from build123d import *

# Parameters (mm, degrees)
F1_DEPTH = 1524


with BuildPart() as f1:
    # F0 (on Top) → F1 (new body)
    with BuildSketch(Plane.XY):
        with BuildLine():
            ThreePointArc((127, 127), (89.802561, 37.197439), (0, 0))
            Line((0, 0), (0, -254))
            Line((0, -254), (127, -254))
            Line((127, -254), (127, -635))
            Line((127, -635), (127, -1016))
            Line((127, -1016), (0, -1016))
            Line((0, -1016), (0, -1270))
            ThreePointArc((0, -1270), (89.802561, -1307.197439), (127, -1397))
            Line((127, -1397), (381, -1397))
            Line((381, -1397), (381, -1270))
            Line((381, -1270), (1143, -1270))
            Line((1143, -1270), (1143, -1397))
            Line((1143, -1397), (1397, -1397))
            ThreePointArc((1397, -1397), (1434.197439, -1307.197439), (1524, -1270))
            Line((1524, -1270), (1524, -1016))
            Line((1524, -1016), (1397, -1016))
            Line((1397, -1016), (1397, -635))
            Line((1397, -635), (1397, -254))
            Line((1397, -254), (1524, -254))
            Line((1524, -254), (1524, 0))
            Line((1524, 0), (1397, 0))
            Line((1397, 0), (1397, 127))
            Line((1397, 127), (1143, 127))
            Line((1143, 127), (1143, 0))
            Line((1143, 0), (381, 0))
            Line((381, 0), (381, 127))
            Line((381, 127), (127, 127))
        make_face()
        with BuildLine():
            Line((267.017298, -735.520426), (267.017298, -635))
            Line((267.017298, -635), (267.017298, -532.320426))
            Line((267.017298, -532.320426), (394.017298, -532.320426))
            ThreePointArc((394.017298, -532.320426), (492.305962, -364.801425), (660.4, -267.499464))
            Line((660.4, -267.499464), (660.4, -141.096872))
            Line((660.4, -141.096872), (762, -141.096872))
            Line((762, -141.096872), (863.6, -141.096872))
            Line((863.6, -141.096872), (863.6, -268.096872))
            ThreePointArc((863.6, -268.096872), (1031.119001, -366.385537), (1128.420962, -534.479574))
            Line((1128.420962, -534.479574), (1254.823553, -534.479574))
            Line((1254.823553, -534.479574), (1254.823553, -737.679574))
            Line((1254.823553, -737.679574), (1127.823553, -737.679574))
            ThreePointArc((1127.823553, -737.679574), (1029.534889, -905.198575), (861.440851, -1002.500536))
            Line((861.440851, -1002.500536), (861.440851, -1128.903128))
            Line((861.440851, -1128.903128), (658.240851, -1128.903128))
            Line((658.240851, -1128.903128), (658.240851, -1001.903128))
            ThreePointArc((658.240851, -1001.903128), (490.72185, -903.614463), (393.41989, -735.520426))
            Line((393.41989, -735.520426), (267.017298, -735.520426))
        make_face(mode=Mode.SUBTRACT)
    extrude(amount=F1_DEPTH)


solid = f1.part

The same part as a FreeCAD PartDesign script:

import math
import FreeCAD as App
import Part
import Sketcher
from FreeCAD import Vector
Q = App.Units.Quantity

doc = App.newDocument("Part")
body = doc.addObject("PartDesign::Body", "Body")

sketch1 = body.newObject("Sketcher::SketchObject", "Sketch")
sketch1.AttachmentSupport = (doc.getObject("XY_Plane"), [""])
sketch1.MapMode = "FlatFace"
sketch1.addGeometry(Part.ArcOfCircle(Part.Circle(Vector(0, 127, 0), Vector(0, 0, 1), 127), math.radians(-90), math.radians(0)), False)
sketch1.addGeometry(Part.LineSegment(Vector(0, 0, 0), Vector(0, -254, 0)), False)
sketch1.addGeometry(Part.LineSegment(Vector(0, -254, 0), Vector(127, -254, 0)), False)
sketch1.addGeometry(Part.LineSegment(Vector(127, -254, 0), Vector(127, -1016, 0)), False)
sketch1.addGeometry(Part.LineSegment(Vector(127, -1016, 0), Vector(0, -1016, 0)), False)
sketch1.addGeometry(Part.LineSegment(Vector(0, -1016, 0), Vector(0, -1270, 0)), False)
sketch1.addGeometry(Part.ArcOfCircle(Part.Circle(Vector(0, -1397, 0), Vector(0, 0, 1), 127), math.radians(0), math.radians(90)), False)
sketch1.addGeometry(Part.LineSegment(Vector(127, -1397, 0), Vector(381, -1397, 0)), False)
sketch1.addGeometry(Part.LineSegment(Vector(381, -1397, 0), Vector(381, -1270, 0)), False)
sketch1.addGeometry(Part.LineSegment(Vector(381, -1270, 0), Vector(1143, -1270, 0)), False)
sketch1.addGeometry(Part.LineSegment(Vector(1143, -1270, 0), Vector(1143, -1397, 0)), False)
sketch1.addGeometry(Part.LineSegment(Vector(1143, -1397, 0), Vector(1397, -1397, 0)), False)
sketch1.addGeometry(Part.ArcOfCircle(Part.Circle(Vector(1524, -1397, 0), Vector(0, 0, 1), 127), math.radians(90), math.radians(180)), False)
sketch1.addGeometry(Part.LineSegment(Vector(1524, -1270, 0), Vector(1524, -1016, 0)), False)
sketch1.addGeometry(Part.LineSegment(Vector(1524, -1016, 0), Vector(1397, -1016, 0)), False)
sketch1.addGeometry(Part.LineSegment(Vector(1397, -1016, 0), Vector(1397, -254, 0)), False)
sketch1.addGeometry(Part.LineSegment(Vector(1397, -254, 0), Vector(1524, -254, 0)), False)
sketch1.addGeometry(Part.LineSegment(Vector(1524, -254, 0), Vector(1524, 0, 0)), False)
sketch1.addGeometry(Part.LineSegment(Vector(1524, 0, 0), Vector(1397, 0, 0)), False)
sketch1.addGeometry(Part.LineSegment(Vector(1397, 0, 0), Vector(1397, 127, 0)), False)
sketch1.addGeometry(Part.LineSegment(Vector(1397, 127, 0), Vector(1143, 127, 0)), False)
sketch1.addGeometry(Part.LineSegment(Vector(1143, 127, 0), Vector(1143, 0, 0)), False)
sketch1.addGeometry(Part.LineSegment(Vector(1143, 0, 0), Vector(381, 0, 0)), False)
sketch1.addGeometry(Part.LineSegment(Vector(381, 0, 0), Vector(381, 127, 0)), False)
sketch1.addGeometry(Part.LineSegment(Vector(381, 127, 0), Vector(127, 127, 0)), False)
sketch1.addGeometry(Part.LineSegment(Vector(393, -736, 0), Vector(267, -736, 0)), False)
sketch1.addGeometry(Part.LineSegment(Vector(267, -736, 0), Vector(267, -532, 0)), False)
sketch1.addGeometry(Part.LineSegment(Vector(267, -532, 0), Vector(394, -532, 0)), False)
sketch1.addGeometry(Part.ArcOfCircle(Part.Circle(Vector(761, -635, 0), Vector(0, 0, 1), 381), math.radians(105), math.radians(164)), False)
sketch1.addGeometry(Part.LineSegment(Vector(660, -267, 0), Vector(660, -141, 0)), False)
sketch1.addGeometry(Part.LineSegment(Vector(660, -141, 0), Vector(864, -141, 0)), False)
sketch1.addGeometry(Part.LineSegment(Vector(864, -141, 0), Vector(864, -268, 0)), False)
sketch1.addGeometry(Part.ArcOfCircle(Part.Circle(Vector(761, -635, 0), Vector(0, 0, 1), 381), math.radians(15), math.radians(74)), False)
sketch1.addGeometry(Part.LineSegment(Vector(1128, -534, 0), Vector(1255, -534, 0)), False)
sketch1.addGeometry(Part.LineSegment(Vector(1255, -534, 0), Vector(1255, -738, 0)), False)
sketch1.addGeometry(Part.LineSegment(Vector(1255, -738, 0), Vector(1128, -738, 0)), False)
sketch1.addGeometry(Part.ArcOfCircle(Part.Circle(Vector(761, -635, 0), Vector(0, 0, 1), 381), math.radians(-75), math.radians(-16)), False)
sketch1.addGeometry(Part.LineSegment(Vector(861, -1003, 0), Vector(861, -1129, 0)), False)
sketch1.addGeometry(Part.LineSegment(Vector(861, -1129, 0), Vector(658, -1129, 0)), False)
sketch1.addGeometry(Part.LineSegment(Vector(658, -1129, 0), Vector(658, -1002, 0)), False)
sketch1.addGeometry(Part.ArcOfCircle(Part.Circle(Vector(761, -635, 0), Vector(0, 0, 1), 381), math.radians(-165), math.radians(-106)), False)
sketch1.addConstraint(Sketcher.Constraint("Coincident", 0, 1, 1, 1))
sketch1.addConstraint(Sketcher.Constraint("Coincident", 1, 2, 2, 1))
sketch1.addConstraint(Sketcher.Constraint("Coincident", 2, 2, 3, 1))
sketch1.addConstraint(Sketcher.Constraint("Coincident", 3, 2, 4, 1))
sketch1.addConstraint(Sketcher.Constraint("Coincident", 4, 2, 5, 1))
sketch1.addConstraint(Sketcher.Constraint("Coincident", 5, 2, 6, 2))
sketch1.addConstraint(Sketcher.Constraint("Coincident", 6, 1, 7, 1))
sketch1.addConstraint(Sketcher.Constraint("Coincident", 7, 2, 8, 1))
sketch1.addConstraint(Sketcher.Constraint("Coincident", 8, 2, 9, 1))
sketch1.addConstraint(Sketcher.Constraint("Coincident", 9, 2, 10, 1))
sketch1.addConstraint(Sketcher.Constraint("Coincident", 10, 2, 11, 1))
sketch1.addConstraint(Sketcher.Constraint("Coincident", 11, 2, 12, 2))
sketch1.addConstraint(Sketcher.Constraint("Coincident", 12, 1, 13, 1))
sketch1.addConstraint(Sketcher.Constraint("Coincident", 13, 2, 14, 1))
sketch1.addConstraint(Sketcher.Constraint("Coincident", 14, 2, 15, 1))
sketch1.addConstraint(Sketcher.Constraint("Coincident", 15, 2, 16, 1))
sketch1.addConstraint(Sketcher.Constraint("Coincident", 16, 2, 17, 1))
sketch1.addConstraint(Sketcher.Constraint("Coincident", 17, 2, 18, 1))
sketch1.addConstraint(Sketcher.Constraint("Coincident", 18, 2, 19, 1))
sketch1.addConstraint(Sketcher.Constraint("Coincident", 19, 2, 20, 1))
sketch1.addConstraint(Sketcher.Constraint("Coincident", 20, 2, 21, 1))
sketch1.addConstraint(Sketcher.Constraint("Coincident", 21, 2, 22, 1))
sketch1.addConstraint(Sketcher.Constraint("Coincident", 22, 2, 23, 1))
sketch1.addConstraint(Sketcher.Constraint("Coincident", 23, 2, 24, 1))
sketch1.addConstraint(Sketcher.Constraint("Coincident", 24, 2, 0, 2))
sketch1.addConstraint(Sketcher.Constraint("Coincident", 25, 2, 26, 1))
sketch1.addConstraint(Sketcher.Constraint("Coincident", 26, 2, 27, 1))
sketch1.addConstraint(Sketcher.Constraint("Coincident", 27, 2, 28, 2))
sketch1.addConstraint(Sketcher.Constraint("Coincident", 28, 1, 29, 1))
sketch1.addConstraint(Sketcher.Constraint("Coincident", 29, 2, 30, 1))
sketch1.addConstraint(Sketcher.Constraint("Coincident", 30, 2, 31, 1))
sketch1.addConstraint(Sketcher.Constraint("Coincident", 31, 2, 32, 2))
sketch1.addConstraint(Sketcher.Constraint("Coincident", 32, 1, 33, 1))
sketch1.addConstraint(Sketcher.Constraint("Coincident", 33, 2, 34, 1))
sketch1.addConstraint(Sketcher.Constraint("Coincident", 34, 2, 35, 1))
sketch1.addConstraint(Sketcher.Constraint("Coincident", 35, 2, 36, 2))
sketch1.addConstraint(Sketcher.Constraint("Coincident", 36, 1, 37, 1))
sketch1.addConstraint(Sketcher.Constraint("Coincident", 37, 2, 38, 1))
sketch1.addConstraint(Sketcher.Constraint("Coincident", 38, 2, 39, 1))
sketch1.addConstraint(Sketcher.Constraint("Coincident", 39, 2, 40, 2))
sketch1.addConstraint(Sketcher.Constraint("Coincident", 40, 1, 25, 1))
sketch1.addConstraint(Sketcher.Constraint("Vertical", 1))
sketch1.addConstraint(Sketcher.Constraint("Horizontal", 2))
sketch1.addConstraint(Sketcher.Constraint("Vertical", 3))
sketch1.addConstraint(Sketcher.Constraint("Horizontal", 4))
sketch1.addConstraint(Sketcher.Constraint("Vertical", 5))
sketch1.addConstraint(Sketcher.Constraint("Horizontal", 7))
sketch1.addConstraint(Sketcher.Constraint("Vertical", 8))
sketch1.addConstraint(Sketcher.Constraint("Horizontal", 9))
sketch1.addConstraint(Sketcher.Constraint("Vertical", 10))
sketch1.addConstraint(Sketcher.Constraint("Horizontal", 11))
sketch1.addConstraint(Sketcher.Constraint("Vertical", 13))
sketch1.addConstraint(Sketcher.Constraint("Horizontal", 14))
sketch1.addConstraint(Sketcher.Constraint("Vertical", 15))
sketch1.addConstraint(Sketcher.Constraint("Horizontal", 16))
sketch1.addConstraint(Sketcher.Constraint("Vertical", 17))
sketch1.addConstraint(Sketcher.Constraint("Horizontal", 18))
sketch1.addConstraint(Sketcher.Constraint("Vertical", 19))
sketch1.addConstraint(Sketcher.Constraint("Horizontal", 20))
sketch1.addConstraint(Sketcher.Constraint("Vertical", 21))
sketch1.addConstraint(Sketcher.Constraint("Horizontal", 22))
sketch1.addConstraint(Sketcher.Constraint("Vertical", 23))
sketch1.addConstraint(Sketcher.Constraint("Horizontal", 24))
sketch1.addConstraint(Sketcher.Constraint("Horizontal", 25))
sketch1.addConstraint(Sketcher.Constraint("Vertical", 26))
sketch1.addConstraint(Sketcher.Constraint("Horizontal", 27))
sketch1.addConstraint(Sketcher.Constraint("Vertical", 29))
sketch1.addConstraint(Sketcher.Constraint("Horizontal", 30))
sketch1.addConstraint(Sketcher.Constraint("Vertical", 31))
sketch1.addConstraint(Sketcher.Constraint("Horizontal", 33))
sketch1.addConstraint(Sketcher.Constraint("Vertical", 34))
sketch1.addConstraint(Sketcher.Constraint("Horizontal", 35))
sketch1.addConstraint(Sketcher.Constraint("Vertical", 37))
sketch1.addConstraint(Sketcher.Constraint("Horizontal", 38))
sketch1.addConstraint(Sketcher.Constraint("Vertical", 39))
sketch1.addConstraint(Sketcher.Constraint("Coincident", 0, 1, -1, 1))
sketch1.addConstraint(Sketcher.Constraint("Coincident", 32, 3, 28, 3))
sketch1.addConstraint(Sketcher.Constraint("Coincident", 36, 3, 28, 3))
sketch1.addConstraint(Sketcher.Constraint("Coincident", 40, 3, 28, 3))
sketch1.addConstraint(Sketcher.Constraint("Equal", 0, 6))
sketch1.addConstraint(Sketcher.Constraint("Equal", 6, 12))
sketch1.addConstraint(Sketcher.Constraint("Equal", 28, 36))
sketch1.addConstraint(Sketcher.Constraint("Equal", 36, 40))
sketch1.addConstraint(Sketcher.Constraint("PointOnObject", 0, 3, -2))
sketch1.addConstraint(Sketcher.Constraint("PointOnObject", 6, 3, -2))
sketch1.addConstraint(Sketcher.Constraint("PointOnObject", 4, 2, -2))
sketch1.addConstraint(Sketcher.Constraint("PointOnObject", 17, 2, -1))
sketch1.addConstraint(Sketcher.Constraint("PointOnObject", 21, 2, -1))
sketch1.addConstraint(Sketcher.Constraint("Horizontal", 6, 3, 12, 3))
sketch1.addConstraint(Sketcher.Constraint("Horizontal", 12, 3, 6, 1))
sketch1.addConstraint(Sketcher.Constraint("Horizontal", 5, 2, 8, 2))
sketch1.addConstraint(Sketcher.Constraint("Horizontal", 7, 2, 10, 2))
sketch1.addConstraint(Sketcher.Constraint("Horizontal", 4, 2, 13, 2))
sketch1.addConstraint(Sketcher.Constraint("Horizontal", 2, 2, 15, 2))
sketch1.addConstraint(Sketcher.Constraint("Horizontal", 0, 3, 19, 2))
sketch1.addConstraint(Sketcher.Constraint("Horizontal", 20, 2, 23, 2))
sketch1.addConstraint(Sketcher.Constraint("Vertical", 3, 2, 6, 1))
sketch1.addConstraint(Sketcher.Constraint("Vertical", 11, 2, 14, 2))
sketch1.addConstraint(Sketcher.Constraint("Vertical", 13, 2, 16, 2))
sketch1.addConstraint(Sketcher.Constraint("Vertical", 15, 2, 18, 2))
sketch1.addConstraint(Sketcher.Constraint("Vertical", 10, 2, 20, 2))
sketch1.addConstraint(Sketcher.Constraint("Vertical", 8, 2, 22, 2))
sketch1.addConstraint(Sketcher.Constraint("Equal", 7, 11))
sketch1.addConstraint(Sketcher.Constraint("Equal", 4, 14))
sketch1.addConstraint(Sketcher.Constraint("Equal", 18, 27))
sketch1.addConstraint(Sketcher.Constraint("Equal", 25, 33))
sketch1.addConstraint(Sketcher.Constraint("Equal", 27, 35))
sketch1.addConstraint(Sketcher.Constraint("Equal", 30, 38))
sketch1.addConstraint(Sketcher.Constraint("Equal", 24, 1))
sketch1.addConstraint(Sketcher.Constraint("Equal", 22, 3))
sketch1.addConstraint(Sketcher.Constraint("Equal", 1, 5))
sketch1.addConstraint(Sketcher.Constraint("Equal", 38, 26))
sketch1.addConstraint(Sketcher.Constraint("Equal", 33, 29))
sketch1.addConstraint(Sketcher.Constraint("Equal", 23, 31))
sketch1.addConstraint(Sketcher.Constraint("Equal", 26, 34))
sketch1.addConstraint(Sketcher.Constraint("Equal", 29, 37))
sketch1.addConstraint(Sketcher.Constraint("Equal", 31, 39))
sketch1.addConstraint(Sketcher.Constraint("Radius", 0, Q("5 in")))
sketch1.addConstraint(Sketcher.Constraint("Radius", 28, Q("15 in")))
sketch1.addConstraint(Sketcher.Constraint("Radius", 32, Q("15.0000002 in")))
sketch1.addConstraint(Sketcher.Constraint("DistanceX", 7, 1, 7, 2, Q("10 in")))
sketch1.addConstraint(Sketcher.Constraint("DistanceX", 9, 1, 9, 2, Q("30 in")))
sketch1.addConstraint(Sketcher.Constraint("DistanceX", 30, 1, 30, 2, Q("8 in")))
sketch1.addConstraint(Sketcher.Constraint("DistanceY", 28, 3, -1, 1, Q("25 in")))
sketch1.addConstraint(Sketcher.Constraint("DistanceX", -1, 1, 29, 2, Q("26 in")))
sketch1.addConstraint(Sketcher.Constraint("DistanceX", 33, 1, 33, 2, 126.402591))
pad1 = body.newObject("PartDesign::Pad", "Pad")
pad1.Profile = sketch1
pad1.Length = Q("60 in")

doc.recompute()
